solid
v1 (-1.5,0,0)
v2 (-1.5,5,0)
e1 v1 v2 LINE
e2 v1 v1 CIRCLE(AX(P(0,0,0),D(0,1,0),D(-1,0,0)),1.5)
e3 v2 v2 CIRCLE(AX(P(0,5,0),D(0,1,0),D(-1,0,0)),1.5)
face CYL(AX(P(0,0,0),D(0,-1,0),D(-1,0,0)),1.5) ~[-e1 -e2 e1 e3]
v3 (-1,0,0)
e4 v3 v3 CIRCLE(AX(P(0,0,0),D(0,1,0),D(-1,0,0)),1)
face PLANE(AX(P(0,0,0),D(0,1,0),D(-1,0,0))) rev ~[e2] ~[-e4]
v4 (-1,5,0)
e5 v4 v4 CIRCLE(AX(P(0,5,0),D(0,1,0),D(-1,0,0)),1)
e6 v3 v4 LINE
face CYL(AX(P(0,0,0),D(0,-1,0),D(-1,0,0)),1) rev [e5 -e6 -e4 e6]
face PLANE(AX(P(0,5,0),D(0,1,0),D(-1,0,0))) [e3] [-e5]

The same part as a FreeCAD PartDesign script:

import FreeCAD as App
import Part
import Sketcher
from FreeCAD import Vector
Q = App.Units.Quantity

doc = App.newDocument("Part")
body = doc.addObject("PartDesign::Body", "Body")

# Sketch on XZ plane
sketch1 = body.newObject("Sketcher::SketchObject", "Sketch")
sketch1.AttachmentSupport = (doc.getObject("XZ_Plane"), [""])
sketch1.MapMode = "FlatFace"
sketch1.addGeometry(Part.Circle(Vector(0, 0, 0), Vector(0, 0, 1), 1.5), False)
sketch1.addGeometry(Part.Circle(Vector(0, 0, 0), Vector(0, 0, 1), 1), False)
sketch1.addConstraint(Sketcher.Constraint("Coincident", 0, 3, -1, 1))
sketch1.addConstraint(Sketcher.Constraint("Coincident", 1, 3, -1, 1))
sketch1.addConstraint(Sketcher.Constraint("Diameter", 0, Q("3 mm")))
sketch1.addConstraint(Sketcher.Constraint("Diameter", 1, Q("2 mm")))
pad1 = body.newObject("PartDesign::Pad", "Pad")
pad1.Profile = sketch1
pad1.Length = 5
pad1.Reversed = True

doc.recompute()
